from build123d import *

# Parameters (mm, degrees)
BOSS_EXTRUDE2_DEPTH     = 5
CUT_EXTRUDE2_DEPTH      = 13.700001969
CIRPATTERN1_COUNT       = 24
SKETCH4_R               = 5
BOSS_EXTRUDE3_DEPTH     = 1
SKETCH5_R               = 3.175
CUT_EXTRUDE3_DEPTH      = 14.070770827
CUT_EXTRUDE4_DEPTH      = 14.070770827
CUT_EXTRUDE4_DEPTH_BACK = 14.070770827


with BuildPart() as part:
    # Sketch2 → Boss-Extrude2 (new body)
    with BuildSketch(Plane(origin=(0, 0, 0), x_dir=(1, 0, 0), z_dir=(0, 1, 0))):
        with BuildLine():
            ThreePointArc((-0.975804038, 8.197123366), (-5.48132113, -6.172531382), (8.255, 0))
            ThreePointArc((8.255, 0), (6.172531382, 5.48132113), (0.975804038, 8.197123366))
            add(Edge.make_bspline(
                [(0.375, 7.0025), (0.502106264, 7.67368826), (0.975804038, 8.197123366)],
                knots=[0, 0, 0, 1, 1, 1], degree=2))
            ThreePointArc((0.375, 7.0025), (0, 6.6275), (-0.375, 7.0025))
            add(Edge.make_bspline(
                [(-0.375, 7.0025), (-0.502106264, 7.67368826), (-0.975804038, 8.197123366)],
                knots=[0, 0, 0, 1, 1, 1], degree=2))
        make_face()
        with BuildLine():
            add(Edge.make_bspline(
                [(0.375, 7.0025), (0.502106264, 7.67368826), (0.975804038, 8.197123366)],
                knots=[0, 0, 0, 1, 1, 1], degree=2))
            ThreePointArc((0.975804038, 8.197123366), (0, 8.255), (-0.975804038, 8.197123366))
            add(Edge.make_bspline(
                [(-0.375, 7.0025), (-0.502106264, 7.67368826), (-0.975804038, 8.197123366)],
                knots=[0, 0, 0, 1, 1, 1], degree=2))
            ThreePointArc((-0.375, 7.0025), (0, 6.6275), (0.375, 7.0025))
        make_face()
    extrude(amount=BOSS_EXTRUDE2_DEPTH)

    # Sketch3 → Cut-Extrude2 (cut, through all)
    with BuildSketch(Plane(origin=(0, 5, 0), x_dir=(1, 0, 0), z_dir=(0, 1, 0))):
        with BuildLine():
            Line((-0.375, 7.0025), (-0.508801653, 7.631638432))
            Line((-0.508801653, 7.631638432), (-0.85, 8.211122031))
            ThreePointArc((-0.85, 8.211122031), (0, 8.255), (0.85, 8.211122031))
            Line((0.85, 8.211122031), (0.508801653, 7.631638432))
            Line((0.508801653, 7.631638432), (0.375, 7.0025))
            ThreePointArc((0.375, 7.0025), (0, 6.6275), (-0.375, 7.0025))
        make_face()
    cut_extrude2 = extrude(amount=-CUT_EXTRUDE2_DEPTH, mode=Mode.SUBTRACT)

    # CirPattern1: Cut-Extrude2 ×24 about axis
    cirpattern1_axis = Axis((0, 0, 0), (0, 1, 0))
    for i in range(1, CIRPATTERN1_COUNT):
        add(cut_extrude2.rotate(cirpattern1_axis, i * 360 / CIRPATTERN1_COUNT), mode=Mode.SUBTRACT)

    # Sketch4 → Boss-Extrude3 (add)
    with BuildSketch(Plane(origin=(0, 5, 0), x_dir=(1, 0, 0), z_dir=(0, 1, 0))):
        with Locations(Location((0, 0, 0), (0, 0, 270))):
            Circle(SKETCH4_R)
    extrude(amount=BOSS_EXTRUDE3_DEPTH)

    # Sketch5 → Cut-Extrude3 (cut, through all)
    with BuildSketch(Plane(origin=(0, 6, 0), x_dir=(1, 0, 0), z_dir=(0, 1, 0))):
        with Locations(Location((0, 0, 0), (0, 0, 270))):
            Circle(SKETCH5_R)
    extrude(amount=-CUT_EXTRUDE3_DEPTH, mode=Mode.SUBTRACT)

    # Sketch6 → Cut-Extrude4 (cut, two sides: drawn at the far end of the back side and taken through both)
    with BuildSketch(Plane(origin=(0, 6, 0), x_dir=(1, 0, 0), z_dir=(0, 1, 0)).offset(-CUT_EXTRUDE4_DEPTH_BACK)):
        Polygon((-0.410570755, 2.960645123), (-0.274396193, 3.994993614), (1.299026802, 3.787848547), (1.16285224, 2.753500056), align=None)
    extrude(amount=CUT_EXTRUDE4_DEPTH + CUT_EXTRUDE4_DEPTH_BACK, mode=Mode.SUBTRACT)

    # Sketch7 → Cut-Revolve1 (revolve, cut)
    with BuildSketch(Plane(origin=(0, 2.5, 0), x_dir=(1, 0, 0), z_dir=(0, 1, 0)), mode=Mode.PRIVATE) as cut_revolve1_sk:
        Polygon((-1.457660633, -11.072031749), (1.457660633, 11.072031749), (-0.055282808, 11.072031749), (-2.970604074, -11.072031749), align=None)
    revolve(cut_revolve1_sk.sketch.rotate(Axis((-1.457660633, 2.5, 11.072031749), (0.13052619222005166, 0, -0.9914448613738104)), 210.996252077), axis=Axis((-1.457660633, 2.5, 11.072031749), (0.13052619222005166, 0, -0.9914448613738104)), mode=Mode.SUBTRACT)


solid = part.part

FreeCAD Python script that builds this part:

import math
import FreeCAD as App
import Part
import Sketcher

V = App.Vector
Q = App.Units.Quantity

doc = App.newDocument("Part")
params = doc.addObject("Spreadsheet::Sheet", "Params")
for row, (alias, value) in enumerate([
    ("pad1_length", "5 mm"),
    ("sketch3_diameter", "10 mm"),
    ("pad2_length", "1 mm"),
    ("sketch4_diameter", "6.35 mm"),
    ("groove_angle", "360 deg"),
], start=1):
    params.set(f"A{row}", alias)
    params.set(f"B{row}", "=" + value)
    params.setAlias(f"B{row}", alias)

body = doc.addObject("PartDesign::Body", "Body")

# Sketch on XZ plane
sketch1 = body.newObject("Sketcher::SketchObject", "Sketch")
sketch1.AttachmentSupport = (doc.getObject("XZ_Plane"), [""])
sketch1.MapMode = "FlatFace"
sketch1.addGeometry([
    Part.ArcOfCircle(Part.Circle(V(0, 0, 0), V(0, 0, 1), 8.3), math.radians(0), math.radians(263)),
    Part.ArcOfCircle(Part.Circle(V(0, 0, 0), V(0, 0, 1), 8.3), math.radians(-83), math.radians(0)),
    Part.ArcOfCircle(Part.Circle(V(0, 0, 0), V(0, 0, 1), 8.3), math.radians(-96.79), math.radians(-83.21)),
], False)
sketch1.addConstraint([
    Sketcher.Constraint("Tangent", 0, 1, 1, 2),
    Sketcher.Constraint("Tangent", 1, 1, 2, 2),
    Sketcher.Constraint("Tangent", 2, 1, 0, 2),
    Sketcher.Constraint("Coincident", 0, 3, -1, 1),
    Sketcher.Constraint("PointOnObject", 0, 1, -1),
    Sketcher.Constraint("Horizontal", 1, 1, 2, 1),
    Sketcher.Constraint("Radius", 0, 8.255),
    Sketcher.Constraint("DistanceX", 2, 1, 1, 1, 1.951608),
])
pad1 = body.newObject("PartDesign::Pad", "Pad")
pad1.Profile = sketch1
pad1.setExpression("Length", "Params.pad1_length")
pad1.Reversed = True

# Sketch on XZ plane
sketch2 = body.newObject("Sketcher::SketchObject", "Sketch001")
sketch2.AttachmentSupport = (doc.getObject("XZ_Plane"), [""])
sketch2.MapMode = "FlatFace"
sketch2.AttachmentOffset = App.Placement(V(0, 0, -5), App.Rotation())
sketch2.addGeometry([
    Part.LineSegment(V(-0.51, -7.63, 0), V(-0.38, -7, 0)),  # 0
    Part.ArcOfCircle(Part.Circle(V(0, -7, 0), V(0, 0, 1), 0.38), math.radians(0), math.radians(180)),  # 1
    Part.LineSegment(V(0.38, -7, 0), V(0.51, -7.63, 0)),  # 2
    Part.LineSegment(V(0.51, -7.63, 0), V(0.85, -8.21, 0)),  # 3
    Part.ArcOfCircle(Part.Circle(V(0, 0, 0), V(0, 0, 1), 8.26), math.radians(-95.91), math.radians(-84.09)),  # 4
    Part.LineSegment(V(-0.85, -8.21, 0), V(-0.51, -7.63, 0)),  # 5
], False)
sketch2.addConstraint([
    Sketcher.Constraint("Coincident", 0, 2, 1, 2),
    Sketcher.Constraint("Coincident", 1, 1, 2, 1),
    Sketcher.Constraint("Coincident", 2, 2, 3, 1),
    Sketcher.Constraint("Coincident", 3, 2, 4, 2),
    Sketcher.Constraint("Coincident", 4, 1, 5, 1),
    Sketcher.Constraint("Coincident", 5, 2, 0, 1),
    Sketcher.Constraint("Coincident", 4, 3, -1, 1),
    Sketcher.Constraint("Symmetric", 0, 2, 1, 1, -2),
    Sketcher.Constraint("Symmetric", 2, 2, 5, 2, -2),
    Sketcher.Constraint("Horizontal", 1, 3, 0, 2),
    Sketcher.Constraint("Horizontal", 3, 2, 4, 1),
    Sketcher.Constraint("Radius", 1, 0.375),
    Sketcher.Constraint("Radius", 4, 8.255),
    Sketcher.Constraint("DistanceX", 4, 1, 3, 2, 1.7),
    Sketcher.Constraint("DistanceY", 1, 3, -1, 1, 7.0025),
    Sketcher.Constraint("DistanceX", -1, 1, 2, 2, 0.508802),
    Sketcher.Constraint("Distance", 0, 0.643209),
])
pocket1 = body.newObject("PartDesign::Pocket", "Pocket")
pocket1.Profile = sketch2
pocket1.Type = "ThroughAll"
pocket1.Reversed = True
doc.recompute()

polarpattern = body.newObject("PartDesign::PolarPattern", "PolarPattern")
polarpattern.Originals = [pocket1]
polarpattern.Axis = (doc.getObject("Y_Axis"), [""])
polarpattern.Angle = 360
polarpattern.Occurrences = 24
body.Tip = polarpattern

# Sketch on XZ plane
sketch3 = body.newObject("Sketcher::SketchObject", "Sketch002")
sketch3.AttachmentSupport = (doc.getObject("XZ_Plane"), [""])
sketch3.MapMode = "FlatFace"
sketch3.AttachmentOffset = App.Placement(V(0, 0, -5), App.Rotation())
sketch3.addGeometry(Part.Circle(V(0, 0, 0), V(0, 0, 1), 5), False)
sketch3.addConstraint([
    Sketcher.Constraint("Coincident", 0, 3, -1, 1),
    Sketcher.Constraint("Diameter", 0, 10.0),
])
sketch3.setExpression("Constraints[1]", "Params.sketch3_diameter")
pad2 = body.newObject("PartDesign::Pad", "Pad001")
pad2.Profile = sketch3
pad2.setExpression("Length", "Params.pad2_length")
pad2.Reversed = True

# Sketch on XZ plane
sketch4 = body.newObject("Sketcher::SketchObject", "Sketch003")
sketch4.AttachmentSupport = (doc.getObject("XZ_Plane"), [""])
sketch4.MapMode = "FlatFace"
sketch4.AttachmentOffset = App.Placement(V(0, 0, -6), App.Rotation())
sketch4.addGeometry(Part.Circle(V(0, 0, 0), V(0, 0, 1), 3.2), False)
sketch4.addConstraint([
    Sketcher.Constraint("Coincident", 0, 3, -1, 1),
    Sketcher.Constraint("Diameter", 0, 6.35),
])
sketch4.setExpression("Constraints[1]", "Params.sketch4_diameter")
pocket2 = body.newObject("PartDesign::Pocket", "Pocket001")
pocket2.Profile = sketch4
pocket2.Type = "ThroughAll"
pocket2.Reversed = True

# Sketch on XZ plane
sketch5 = body.newObject("Sketcher::SketchObject", "Sketch004")
sketch5.AttachmentSupport = (doc.getObject("XZ_Plane"), [""])
sketch5.MapMode = "FlatFace"
sketch5.AttachmentOffset = App.Placement(V(0, 0, -6), App.Rotation())
sketch5.addGeometry([
    Part.LineSegment(V(-0.3, -4, 0), V(-0.4, -3, 0)),
    Part.LineSegment(V(-0.4, -3, 0), V(1.2, -2.8, 0)),
    Part.LineSegment(V(1.2, -2.8, 0), V(1.3, -3.8, 0)),
    Part.LineSegment(V(1.3, -3.8, 0), V(-0.3, -4, 0)),
], False)
sketch5.addConstraint([
    Sketcher.Constraint("Coincident", 0, 2, 1, 1),
    Sketcher.Constraint("Coincident", 1, 2, 2, 1),
    Sketcher.Constraint("Coincident", 2, 2, 3, 1),
    Sketcher.Constraint("Coincident", 3, 2, 0, 1),
    Sketcher.Constraint("Perpendicular", 0, 1),
    Sketcher.Constraint("Perpendicular", 1, 2),
    Sketcher.Constraint("Perpendicular", 2, 3),
    Sketcher.Constraint("Angle", 0, Q("97.5 deg")),
    Sketcher.Constraint("Distance", 1, 1.587),
    Sketcher.Constraint("DistanceY", 1, 2, -1, 1, 2.7535),
    Sketcher.Constraint("DistanceX", 0, 2, -1, 1, 0.410571),
    Sketcher.Constraint("DistanceY", 2, 2, -1, 1, 3.787849),
])
pocket3 = body.newObject("PartDesign::Pocket", "Pocket002")
pocket3.Profile = sketch5
pocket3.Type = "ThroughAll"
pocket3.Midplane = True

# Sketch on XZ plane
sketch6 = body.newObject("Sketcher::SketchObject", "Sketch005")
sketch6.AttachmentSupport = (doc.getObject("XZ_Plane"), [""])
sketch6.MapMode = "FlatFace"
sketch6.AttachmentOffset = App.Placement(V(0, 0, -2.5), App.Rotation())
sketch6.addGeometry([
    Part.LineSegment(V(-1.5, 11.1, 0), V(1.5, -11.1, 0)),
    Part.LineSegment(V(1.5, -11.1, 0), V(-0.1, -11.1, 0)),
    Part.LineSegment(V(-0.1, -11.1, 0), V(-3, 11.1, 0)),
    Part.LineSegment(V(-3, 11.1, 0), V(-1.5, 11.1, 0)),
], False)
sketch6.addGeometry(Part.LineSegment(V(-1.5, 11.3, 0), V(1.5, -11.1, 0)), True)  # axis
sketch6.addConstraint([
    Sketcher.Constraint("Coincident", 0, 2, 1, 1),
    Sketcher.Constraint("Coincident", 1, 2, 2, 1),
    Sketcher.Constraint("Coincident", 2, 2, 3, 1),
    Sketcher.Constraint("Coincident", 3, 2, 0, 1),
    Sketcher.Constraint("Horizontal", 1),
    Sketcher.Constraint("Horizontal", 3),
    Sketcher.Constraint("Coincident", 4, 2, 0, 2),
    Sketcher.Constraint("Symmetric", 0, 2, 3, 2, -1, 1),
    Sketcher.Constraint("Parallel", 0, 2),
    Sketcher.Constraint("Parallel", 2, 4),
    Sketcher.Constraint("Angle", 0, Q("-82.5 deg")),
    Sketcher.Constraint("DistanceX", 1, 2, 1, 1, 1.512943),
    Sketcher.Constraint("DistanceX", -1, 1, 0, 2, 1.457661),
    Sketcher.Constraint("DistanceY", -1, 1, 4, 1, 11.267821),
])
groove = body.newObject("PartDesign::Groove", "Groove")
groove.Profile = sketch6
groove.ReferenceAxis = (sketch6, ["Axis0"])
groove.setExpression("Angle", "Params.groove_angle")

doc.recompute()
